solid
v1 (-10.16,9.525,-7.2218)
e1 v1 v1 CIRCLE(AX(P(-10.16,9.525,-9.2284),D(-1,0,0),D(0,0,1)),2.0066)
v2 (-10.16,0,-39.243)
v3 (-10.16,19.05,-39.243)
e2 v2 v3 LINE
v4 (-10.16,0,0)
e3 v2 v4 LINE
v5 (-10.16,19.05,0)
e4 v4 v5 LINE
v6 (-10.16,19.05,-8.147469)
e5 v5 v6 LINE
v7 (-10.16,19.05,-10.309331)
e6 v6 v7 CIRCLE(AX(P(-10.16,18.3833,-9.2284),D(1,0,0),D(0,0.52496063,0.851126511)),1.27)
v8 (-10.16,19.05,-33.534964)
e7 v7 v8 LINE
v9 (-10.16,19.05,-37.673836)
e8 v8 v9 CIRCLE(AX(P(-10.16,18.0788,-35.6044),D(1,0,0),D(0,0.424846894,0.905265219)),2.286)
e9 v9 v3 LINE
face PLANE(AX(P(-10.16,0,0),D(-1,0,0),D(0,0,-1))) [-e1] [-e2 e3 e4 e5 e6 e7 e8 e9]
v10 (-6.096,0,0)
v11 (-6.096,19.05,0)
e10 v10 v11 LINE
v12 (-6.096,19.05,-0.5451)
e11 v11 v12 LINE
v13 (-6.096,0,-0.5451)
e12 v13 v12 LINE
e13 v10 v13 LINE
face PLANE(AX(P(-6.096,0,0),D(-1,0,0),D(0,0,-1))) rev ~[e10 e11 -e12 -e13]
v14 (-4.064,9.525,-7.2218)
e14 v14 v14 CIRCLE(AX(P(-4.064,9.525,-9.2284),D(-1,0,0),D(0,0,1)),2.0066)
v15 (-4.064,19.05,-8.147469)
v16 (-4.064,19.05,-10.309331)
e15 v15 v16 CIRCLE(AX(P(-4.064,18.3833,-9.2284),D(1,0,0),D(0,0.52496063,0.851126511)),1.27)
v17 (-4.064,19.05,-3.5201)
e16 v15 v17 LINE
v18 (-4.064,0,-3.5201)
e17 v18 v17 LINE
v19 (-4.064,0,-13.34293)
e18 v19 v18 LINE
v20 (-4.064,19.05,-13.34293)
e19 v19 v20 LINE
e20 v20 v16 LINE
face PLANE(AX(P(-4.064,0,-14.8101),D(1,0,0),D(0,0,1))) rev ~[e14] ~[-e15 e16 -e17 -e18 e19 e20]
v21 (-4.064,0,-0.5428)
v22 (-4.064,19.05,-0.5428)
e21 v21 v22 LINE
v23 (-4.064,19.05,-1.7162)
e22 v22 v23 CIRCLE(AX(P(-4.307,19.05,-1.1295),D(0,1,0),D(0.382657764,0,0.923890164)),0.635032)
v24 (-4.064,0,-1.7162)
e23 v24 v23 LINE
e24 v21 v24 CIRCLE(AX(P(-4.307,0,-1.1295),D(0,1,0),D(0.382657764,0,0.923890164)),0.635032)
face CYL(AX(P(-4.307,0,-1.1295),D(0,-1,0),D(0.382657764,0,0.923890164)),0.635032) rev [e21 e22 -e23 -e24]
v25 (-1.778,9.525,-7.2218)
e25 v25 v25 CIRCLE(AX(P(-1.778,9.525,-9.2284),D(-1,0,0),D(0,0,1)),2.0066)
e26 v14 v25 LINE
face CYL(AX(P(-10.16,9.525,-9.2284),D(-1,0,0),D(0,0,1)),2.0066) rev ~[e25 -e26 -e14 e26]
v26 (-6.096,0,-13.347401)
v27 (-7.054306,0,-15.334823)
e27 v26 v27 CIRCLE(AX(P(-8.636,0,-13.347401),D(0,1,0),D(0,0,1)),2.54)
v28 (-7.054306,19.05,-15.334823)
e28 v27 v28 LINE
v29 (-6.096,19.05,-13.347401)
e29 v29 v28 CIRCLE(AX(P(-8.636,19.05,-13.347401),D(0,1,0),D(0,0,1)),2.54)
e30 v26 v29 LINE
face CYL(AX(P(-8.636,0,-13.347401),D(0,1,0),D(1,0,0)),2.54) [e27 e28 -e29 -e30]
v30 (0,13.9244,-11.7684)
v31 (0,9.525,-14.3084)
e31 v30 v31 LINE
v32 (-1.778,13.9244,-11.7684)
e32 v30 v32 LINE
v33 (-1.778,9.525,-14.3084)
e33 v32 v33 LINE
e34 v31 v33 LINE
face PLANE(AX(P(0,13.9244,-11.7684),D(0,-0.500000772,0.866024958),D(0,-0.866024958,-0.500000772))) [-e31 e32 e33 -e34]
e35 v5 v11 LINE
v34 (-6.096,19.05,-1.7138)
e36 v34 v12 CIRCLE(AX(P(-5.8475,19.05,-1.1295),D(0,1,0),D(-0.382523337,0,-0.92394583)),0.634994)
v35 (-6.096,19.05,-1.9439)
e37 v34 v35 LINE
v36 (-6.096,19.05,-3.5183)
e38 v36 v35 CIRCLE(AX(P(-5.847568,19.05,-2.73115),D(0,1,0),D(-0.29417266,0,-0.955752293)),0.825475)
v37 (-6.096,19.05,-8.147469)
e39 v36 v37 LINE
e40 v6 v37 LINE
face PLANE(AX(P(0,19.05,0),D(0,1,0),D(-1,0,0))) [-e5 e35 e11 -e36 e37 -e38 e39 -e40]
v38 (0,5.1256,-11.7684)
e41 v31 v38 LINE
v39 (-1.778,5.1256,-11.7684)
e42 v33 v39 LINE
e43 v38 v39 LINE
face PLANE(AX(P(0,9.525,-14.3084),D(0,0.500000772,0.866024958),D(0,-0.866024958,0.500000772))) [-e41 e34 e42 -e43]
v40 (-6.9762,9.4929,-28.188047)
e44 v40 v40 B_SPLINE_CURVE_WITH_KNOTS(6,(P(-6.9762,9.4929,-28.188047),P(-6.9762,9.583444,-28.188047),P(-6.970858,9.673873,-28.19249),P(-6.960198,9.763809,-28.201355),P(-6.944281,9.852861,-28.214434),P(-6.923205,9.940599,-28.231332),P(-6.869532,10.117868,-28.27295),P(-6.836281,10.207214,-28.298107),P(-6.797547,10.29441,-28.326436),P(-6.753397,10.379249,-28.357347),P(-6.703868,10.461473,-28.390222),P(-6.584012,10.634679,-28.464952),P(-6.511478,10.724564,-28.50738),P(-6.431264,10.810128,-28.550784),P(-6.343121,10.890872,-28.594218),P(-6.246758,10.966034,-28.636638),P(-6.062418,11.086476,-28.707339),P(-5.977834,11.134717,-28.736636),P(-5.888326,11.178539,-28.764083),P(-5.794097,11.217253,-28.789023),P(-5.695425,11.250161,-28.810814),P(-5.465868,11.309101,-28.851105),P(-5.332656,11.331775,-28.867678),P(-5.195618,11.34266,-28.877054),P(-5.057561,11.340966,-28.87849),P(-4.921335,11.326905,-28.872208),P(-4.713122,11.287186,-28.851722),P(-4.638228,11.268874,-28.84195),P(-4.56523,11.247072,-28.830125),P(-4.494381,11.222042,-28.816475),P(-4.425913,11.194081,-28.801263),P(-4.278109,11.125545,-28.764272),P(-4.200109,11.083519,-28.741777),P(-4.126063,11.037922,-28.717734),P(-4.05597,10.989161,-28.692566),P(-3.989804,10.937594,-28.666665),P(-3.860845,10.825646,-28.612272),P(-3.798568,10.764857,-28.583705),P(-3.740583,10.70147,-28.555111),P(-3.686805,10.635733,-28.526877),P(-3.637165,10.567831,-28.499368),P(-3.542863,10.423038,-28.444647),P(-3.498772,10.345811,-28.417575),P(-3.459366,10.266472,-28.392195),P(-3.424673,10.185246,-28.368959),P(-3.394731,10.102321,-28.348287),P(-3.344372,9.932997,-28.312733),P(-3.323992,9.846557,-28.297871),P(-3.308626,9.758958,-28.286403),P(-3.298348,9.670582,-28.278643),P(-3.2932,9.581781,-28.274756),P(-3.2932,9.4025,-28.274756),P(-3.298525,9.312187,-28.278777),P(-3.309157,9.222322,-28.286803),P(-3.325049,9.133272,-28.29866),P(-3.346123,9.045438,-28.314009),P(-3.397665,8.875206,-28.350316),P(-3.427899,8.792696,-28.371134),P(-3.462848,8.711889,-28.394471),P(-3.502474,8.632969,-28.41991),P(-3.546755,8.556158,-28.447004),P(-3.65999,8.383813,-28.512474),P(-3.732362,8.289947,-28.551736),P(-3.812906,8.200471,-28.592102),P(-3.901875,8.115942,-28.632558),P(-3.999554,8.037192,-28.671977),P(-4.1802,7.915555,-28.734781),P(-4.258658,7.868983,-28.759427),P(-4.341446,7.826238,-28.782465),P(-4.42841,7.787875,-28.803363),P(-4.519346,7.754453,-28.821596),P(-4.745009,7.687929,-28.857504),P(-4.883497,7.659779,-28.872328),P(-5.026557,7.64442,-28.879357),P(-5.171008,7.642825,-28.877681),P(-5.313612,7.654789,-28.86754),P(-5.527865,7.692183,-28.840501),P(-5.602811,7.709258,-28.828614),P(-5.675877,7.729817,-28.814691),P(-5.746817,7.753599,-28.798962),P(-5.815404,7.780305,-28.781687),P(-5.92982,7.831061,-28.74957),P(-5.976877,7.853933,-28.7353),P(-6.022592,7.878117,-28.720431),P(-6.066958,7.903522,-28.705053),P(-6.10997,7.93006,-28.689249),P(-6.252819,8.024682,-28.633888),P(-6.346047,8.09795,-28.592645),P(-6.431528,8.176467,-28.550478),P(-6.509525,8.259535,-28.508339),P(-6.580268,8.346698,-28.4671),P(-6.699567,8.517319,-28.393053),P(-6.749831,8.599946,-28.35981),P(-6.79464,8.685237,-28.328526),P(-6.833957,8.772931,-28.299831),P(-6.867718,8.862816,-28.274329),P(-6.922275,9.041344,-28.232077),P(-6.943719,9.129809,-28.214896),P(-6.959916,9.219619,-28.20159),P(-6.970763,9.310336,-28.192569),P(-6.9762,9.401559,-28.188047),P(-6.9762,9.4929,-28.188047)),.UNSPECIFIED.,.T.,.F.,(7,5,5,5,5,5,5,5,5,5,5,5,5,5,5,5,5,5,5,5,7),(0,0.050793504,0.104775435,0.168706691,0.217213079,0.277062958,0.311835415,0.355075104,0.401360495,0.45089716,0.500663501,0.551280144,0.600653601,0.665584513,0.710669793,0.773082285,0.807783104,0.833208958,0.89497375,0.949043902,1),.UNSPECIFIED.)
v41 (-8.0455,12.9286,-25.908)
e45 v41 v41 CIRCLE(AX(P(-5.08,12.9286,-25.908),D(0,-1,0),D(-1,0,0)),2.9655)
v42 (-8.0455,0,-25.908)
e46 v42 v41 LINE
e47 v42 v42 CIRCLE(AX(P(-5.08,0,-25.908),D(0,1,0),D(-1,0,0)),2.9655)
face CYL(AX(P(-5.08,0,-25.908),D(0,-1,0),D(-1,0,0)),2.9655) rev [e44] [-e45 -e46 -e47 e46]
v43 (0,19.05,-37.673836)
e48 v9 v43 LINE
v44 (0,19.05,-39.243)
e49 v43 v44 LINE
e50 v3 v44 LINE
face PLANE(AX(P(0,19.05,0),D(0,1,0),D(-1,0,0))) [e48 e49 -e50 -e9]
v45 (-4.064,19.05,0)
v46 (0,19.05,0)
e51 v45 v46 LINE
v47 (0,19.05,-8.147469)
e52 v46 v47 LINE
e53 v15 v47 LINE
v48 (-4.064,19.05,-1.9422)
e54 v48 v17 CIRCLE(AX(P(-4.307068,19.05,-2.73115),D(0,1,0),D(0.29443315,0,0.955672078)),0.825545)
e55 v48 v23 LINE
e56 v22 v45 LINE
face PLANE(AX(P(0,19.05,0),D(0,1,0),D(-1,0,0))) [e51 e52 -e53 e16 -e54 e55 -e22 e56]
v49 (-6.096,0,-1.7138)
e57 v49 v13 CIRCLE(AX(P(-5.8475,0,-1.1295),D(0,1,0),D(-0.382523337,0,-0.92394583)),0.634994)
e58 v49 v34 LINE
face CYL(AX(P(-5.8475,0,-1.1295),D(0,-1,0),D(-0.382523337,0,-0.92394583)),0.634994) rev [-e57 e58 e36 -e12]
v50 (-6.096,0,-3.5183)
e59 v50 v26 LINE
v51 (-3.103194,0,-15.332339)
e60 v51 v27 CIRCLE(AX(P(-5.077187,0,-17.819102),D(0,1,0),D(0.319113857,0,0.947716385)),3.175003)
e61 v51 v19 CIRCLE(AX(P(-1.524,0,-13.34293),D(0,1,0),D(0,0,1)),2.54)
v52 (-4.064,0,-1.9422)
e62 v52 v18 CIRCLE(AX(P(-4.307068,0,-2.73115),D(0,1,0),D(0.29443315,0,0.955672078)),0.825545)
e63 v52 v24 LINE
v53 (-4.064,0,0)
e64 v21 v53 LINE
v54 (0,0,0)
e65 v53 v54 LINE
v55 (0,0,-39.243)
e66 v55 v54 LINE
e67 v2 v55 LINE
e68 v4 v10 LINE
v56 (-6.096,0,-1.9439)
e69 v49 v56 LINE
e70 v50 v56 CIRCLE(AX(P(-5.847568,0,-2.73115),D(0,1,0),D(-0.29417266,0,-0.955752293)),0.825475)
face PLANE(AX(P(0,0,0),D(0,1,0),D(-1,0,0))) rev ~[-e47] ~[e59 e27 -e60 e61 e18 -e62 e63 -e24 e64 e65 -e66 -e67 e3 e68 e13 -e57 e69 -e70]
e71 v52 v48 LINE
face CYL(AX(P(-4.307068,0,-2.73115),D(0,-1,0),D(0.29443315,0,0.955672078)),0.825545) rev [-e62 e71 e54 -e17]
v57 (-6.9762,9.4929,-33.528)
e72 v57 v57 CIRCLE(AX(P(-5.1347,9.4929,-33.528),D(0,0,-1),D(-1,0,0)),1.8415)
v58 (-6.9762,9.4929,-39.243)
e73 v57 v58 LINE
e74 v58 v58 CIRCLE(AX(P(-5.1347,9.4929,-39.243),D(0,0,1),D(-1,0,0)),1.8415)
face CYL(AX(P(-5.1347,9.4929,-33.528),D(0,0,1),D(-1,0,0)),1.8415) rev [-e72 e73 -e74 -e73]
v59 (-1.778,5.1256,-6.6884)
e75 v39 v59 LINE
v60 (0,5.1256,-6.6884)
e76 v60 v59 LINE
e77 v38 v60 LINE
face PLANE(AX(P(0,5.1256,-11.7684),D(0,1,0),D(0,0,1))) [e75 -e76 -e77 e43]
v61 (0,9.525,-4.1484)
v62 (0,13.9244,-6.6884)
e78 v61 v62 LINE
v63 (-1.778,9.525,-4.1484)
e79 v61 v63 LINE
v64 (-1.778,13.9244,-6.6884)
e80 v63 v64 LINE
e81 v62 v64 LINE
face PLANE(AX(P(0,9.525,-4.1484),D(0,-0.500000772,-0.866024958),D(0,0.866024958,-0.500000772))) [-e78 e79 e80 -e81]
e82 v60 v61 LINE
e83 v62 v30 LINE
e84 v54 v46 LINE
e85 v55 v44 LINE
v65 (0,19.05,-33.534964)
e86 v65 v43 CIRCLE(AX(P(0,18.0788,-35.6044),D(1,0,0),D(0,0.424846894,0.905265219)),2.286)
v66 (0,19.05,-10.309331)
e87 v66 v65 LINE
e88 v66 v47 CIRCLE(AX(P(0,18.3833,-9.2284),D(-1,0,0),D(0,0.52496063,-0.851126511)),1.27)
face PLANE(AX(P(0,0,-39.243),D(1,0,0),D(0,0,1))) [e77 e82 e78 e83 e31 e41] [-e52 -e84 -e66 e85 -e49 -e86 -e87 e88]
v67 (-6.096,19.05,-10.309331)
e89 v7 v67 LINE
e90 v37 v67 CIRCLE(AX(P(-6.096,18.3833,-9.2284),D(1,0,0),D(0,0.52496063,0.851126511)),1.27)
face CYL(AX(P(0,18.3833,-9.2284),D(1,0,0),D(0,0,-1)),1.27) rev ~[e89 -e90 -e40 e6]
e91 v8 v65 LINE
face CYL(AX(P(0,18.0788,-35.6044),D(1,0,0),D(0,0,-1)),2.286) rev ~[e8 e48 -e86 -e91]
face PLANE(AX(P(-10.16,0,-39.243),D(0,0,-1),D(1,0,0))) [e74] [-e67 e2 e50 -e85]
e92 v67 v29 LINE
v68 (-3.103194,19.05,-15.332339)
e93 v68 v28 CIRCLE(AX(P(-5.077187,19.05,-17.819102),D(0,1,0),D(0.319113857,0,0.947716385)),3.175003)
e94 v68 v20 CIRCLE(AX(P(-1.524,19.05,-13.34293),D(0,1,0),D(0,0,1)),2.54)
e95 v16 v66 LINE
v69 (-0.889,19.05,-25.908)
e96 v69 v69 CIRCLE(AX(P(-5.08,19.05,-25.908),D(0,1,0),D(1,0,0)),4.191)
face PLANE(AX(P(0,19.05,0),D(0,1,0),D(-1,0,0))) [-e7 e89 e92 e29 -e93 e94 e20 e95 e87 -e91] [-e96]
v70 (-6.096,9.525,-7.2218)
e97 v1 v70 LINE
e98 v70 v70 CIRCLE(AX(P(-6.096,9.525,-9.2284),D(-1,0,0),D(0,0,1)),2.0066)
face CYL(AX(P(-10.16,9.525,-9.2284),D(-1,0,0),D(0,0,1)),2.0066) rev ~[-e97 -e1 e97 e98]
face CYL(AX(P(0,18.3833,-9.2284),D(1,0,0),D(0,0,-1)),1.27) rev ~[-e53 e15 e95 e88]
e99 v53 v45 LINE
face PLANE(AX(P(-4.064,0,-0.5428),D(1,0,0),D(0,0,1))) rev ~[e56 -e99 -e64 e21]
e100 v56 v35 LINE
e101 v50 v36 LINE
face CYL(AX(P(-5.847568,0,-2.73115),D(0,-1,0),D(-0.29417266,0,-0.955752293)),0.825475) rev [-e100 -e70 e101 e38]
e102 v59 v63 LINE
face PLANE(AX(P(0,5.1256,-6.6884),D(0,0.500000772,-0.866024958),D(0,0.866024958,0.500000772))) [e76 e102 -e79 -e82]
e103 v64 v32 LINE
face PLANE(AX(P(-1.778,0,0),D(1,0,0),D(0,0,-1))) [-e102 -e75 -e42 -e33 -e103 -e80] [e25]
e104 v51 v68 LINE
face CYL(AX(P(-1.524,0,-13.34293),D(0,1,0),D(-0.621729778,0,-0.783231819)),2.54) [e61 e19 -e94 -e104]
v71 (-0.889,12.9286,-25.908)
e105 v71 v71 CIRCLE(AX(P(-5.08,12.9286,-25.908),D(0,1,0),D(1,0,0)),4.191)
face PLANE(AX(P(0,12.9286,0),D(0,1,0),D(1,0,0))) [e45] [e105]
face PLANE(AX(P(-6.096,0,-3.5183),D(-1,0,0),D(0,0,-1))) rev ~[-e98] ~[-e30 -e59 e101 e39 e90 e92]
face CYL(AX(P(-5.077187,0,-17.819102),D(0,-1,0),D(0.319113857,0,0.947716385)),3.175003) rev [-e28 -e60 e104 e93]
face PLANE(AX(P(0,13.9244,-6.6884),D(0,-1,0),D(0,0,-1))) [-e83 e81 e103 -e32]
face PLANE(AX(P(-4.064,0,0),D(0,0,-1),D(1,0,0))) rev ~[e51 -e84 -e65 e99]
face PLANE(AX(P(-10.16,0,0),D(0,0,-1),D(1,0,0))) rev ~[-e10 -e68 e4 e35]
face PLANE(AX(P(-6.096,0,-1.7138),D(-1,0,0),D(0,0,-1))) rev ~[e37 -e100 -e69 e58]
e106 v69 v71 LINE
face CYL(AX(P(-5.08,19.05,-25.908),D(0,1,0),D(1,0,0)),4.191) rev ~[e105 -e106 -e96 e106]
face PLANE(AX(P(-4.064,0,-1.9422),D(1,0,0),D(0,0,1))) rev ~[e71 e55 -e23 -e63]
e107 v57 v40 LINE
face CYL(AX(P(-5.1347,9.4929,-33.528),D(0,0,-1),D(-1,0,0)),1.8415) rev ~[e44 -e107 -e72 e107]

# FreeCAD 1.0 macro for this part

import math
import FreeCAD as App
import Part
import Sketcher

V = App.Vector
Q = App.Units.Quantity


def edges_at(feature, points):
    """Names of the edges that pass closest to the given points."""
    edges = feature.Shape.Edges
    near = lambda p: min(range(len(edges)), key=lambda i: edges[i].distToShape(Part.Vertex(*p))[0])
    return sorted({f"Edge{near(p) + 1}" for p in points})


def add_polygon(sketch, points):
    """Adds a closed chain of lines whose ends are joined by coincident constraints."""
    first, n = sketch.GeometryCount, len(points)
    for a, b in zip(points, points[1:] + points[:1]):
        sketch.addGeometry(Part.LineSegment(App.Vector(*a, 0), App.Vector(*b, 0)), False)
    for i in range(n):
        sketch.addConstraint(Sketcher.Constraint("Coincident", first + i, 2, first + (i + 1) % n, 1))

doc = App.newDocument("Part")
body = doc.addObject("PartDesign::Body", "Body")

sketch1 = body.newObject("Sketcher::SketchObject", "Sketch")
sketch1.AttachmentSupport = (doc.getObject("XZ_Plane"), [""])
sketch1.MapMode = "FlatFace"
sketch1.addGeometry([
    Part.LineSegment(V(-10.16, -39.243, 0), V(-10.16, 0, 0)),
    Part.LineSegment(V(-10.16, 0, 0), V(-6.096, 0, 0)),
    Part.LineSegment(V(-6.096, 0, 0), V(-6.096, -0.5451, 0)),
    Part.ArcOfCircle(Part.Circle(V(-5.8475, -1.1295, 0), V(0, 0, 1), 0.634994), math.radians(113.036287), math.radians(246.960182)),
    Part.LineSegment(V(-6.096, -1.7138, 0), V(-6.096, -1.9439, 0)),
    Part.ArcOfCircle(Part.Circle(V(-5.8475, -2.7311, 0), V(0, 0, 1), 0.825543), math.radians(107.519647), math.radians(252.480354)),
    Part.LineSegment(V(-6.096, -3.5183, 0), V(-6.096, -14.812, 0)),
    Part.ArcOfCircle(Part.Circle(V(-5.0772, -17.8191, 0), V(0, 0, 1), 3.175005), math.radians(108.716287), math.radians(431.390429)),
    Part.LineSegment(V(-4.064, -14.8101, 0), V(-4.064, -3.5201, 0)),
    Part.ArcOfCircle(Part.Circle(V(-4.307, -2.7311, 0), V(0, 0, 1), 0.825477), math.radians(-72.881964), math.radians(72.879921)),
    Part.LineSegment(V(-4.064, -1.9422, 0), V(-4.064, -1.7162, 0)),
    Part.ArcOfCircle(Part.Circle(V(-4.307, -1.1295, 0), V(0, 0, 1), 0.635032), math.radians(-67.501592), math.radians(67.501592)),
    Part.LineSegment(V(-4.064, -0.5428, 0), V(-4.064, 0, 0)),
    Part.LineSegment(V(-4.064, 0, 0), V(0, 0, 0)),
    Part.LineSegment(V(0, 0, 0), V(0, -39.243, 0)),
    Part.LineSegment(V(0, -39.243, 0), V(-10.16, -39.243, 0)),
    Part.Circle(V(-5.08, -25.908, 0), V(0, 0, 1), 2.9655),
], False)
sketch1.addConstraint([
    Sketcher.Constraint("Coincident", 0, 2, 1, 1),
    Sketcher.Constraint("Coincident", 1, 2, 2, 1),
    Sketcher.Constraint("Coincident", 2, 2, 3, 1),
    Sketcher.Constraint("Coincident", 3, 2, 4, 1),
    Sketcher.Constraint("Coincident", 4, 2, 5, 1),
    Sketcher.Constraint("Coincident", 5, 2, 6, 1),
    Sketcher.Constraint("Coincident", 6, 2, 7, 1),
    Sketcher.Constraint("Coincident", 7, 2, 8, 1),
    Sketcher.Constraint("Coincident", 8, 2, 9, 1),
    Sketcher.Constraint("Coincident", 9, 2, 10, 1),
    Sketcher.Constraint("Coincident", 10, 2, 11, 1),
    Sketcher.Constraint("Coincident", 11, 2, 12, 1),
    Sketcher.Constraint("Coincident", 12, 2, 13, 1),
    Sketcher.Constraint("Coincident", 13, 2, 14, 1),
    Sketcher.Constraint("Coincident", 14, 2, 15, 1),
    Sketcher.Constraint("Coincident", 15, 2, 0, 1),
    Sketcher.Constraint("Vertical", 0),
    Sketcher.Constraint("Horizontal", 1),
    Sketcher.Constraint("Vertical", 2),
    Sketcher.Constraint("Vertical", 4),
    Sketcher.Constraint("Vertical", 6),
    Sketcher.Constraint("Vertical", 8),
    Sketcher.Constraint("Vertical", 10),
    Sketcher.Constraint("Vertical", 12),
    Sketcher.Constraint("Horizontal", 13),
    Sketcher.Constraint("Vertical", 14),
    Sketcher.Constraint("Horizontal", 15),
    Sketcher.Constraint("Coincident", 13, 2, -1, 1),
    Sketcher.Constraint("Equal", 5, 9),
    Sketcher.Constraint("Equal", 3, 11),
    Sketcher.Constraint("PointOnObject", 0, 2, -1),
    Sketcher.Constraint("Horizontal", 5, 3, 9, 3),
    Sketcher.Constraint("Horizontal", 3, 3, 11, 3),
    Sketcher.Constraint("Vertical", 3, 3, 5, 3),
    Sketcher.Constraint("Vertical", 9, 3, 11, 3),
    Sketcher.Constraint("Vertical", 2, 2, 3, 2),
    Sketcher.Constraint("Vertical", 4, 2, 5, 2),
    Sketcher.Constraint("Vertical", 8, 2, 9, 2),
    Sketcher.Constraint("Vertical", 10, 2, 11, 2),
    Sketcher.Constraint("Equal", 1, 13),
    Sketcher.Constraint("DistanceX", 15, 2, 15, 1, Q("0.4 in")),
    Sketcher.Constraint("Radius", 7, Q("0.125 in")),
    Sketcher.Constraint("Diameter", 16, Q("0.2335 in")),
    Sketcher.Constraint("DistanceY", 16, 3, -1, 1, Q("1.02 in")),
    Sketcher.Constraint("Radius", 3, Q("0.025 in")),
    Sketcher.Constraint("DistanceX", 1, 1, 1, 2, Q("0.16 in")),
    Sketcher.Constraint("DistanceX", 16, 3, -1, 1, Q("0.2 in")),
    Sketcher.Constraint("Radius", 5, Q("0.0325 in")),
    Sketcher.Constraint("DistanceY", 0, 1, 0, 2, Q("1.545 in")),
    Sketcher.Constraint("DistanceY", 8, 1, 8, 2, Q("0.4445 in")),
    Sketcher.Constraint("DistanceY", 10, 1, 10, 2, Q("0.0089 in")),
    Sketcher.Constraint("DistanceY", 3, 3, 2, 2, Q("0.023 in")),
    Sketcher.Constraint("DistanceY", 9, 2, 11, 3, Q("0.032 in")),
    Sketcher.Constraint("DistanceY", 2, 2, 2, 1, Q("0.545 mm")),
    Sketcher.Constraint("DistanceY", 6, 2, 6, 1, Q("11.2937 mm")),
])
pad1 = body.newObject("PartDesign::Pad", "Pad")
pad1.Profile = sketch1
pad1.Length = Q("0.75 in")
pad1.Reversed = True

sketch2 = body.newObject("Sketcher::SketchObject", "Sketch001")
sketch2.AttachmentSupport = (doc.getObject("YZ_Plane"), [""])
sketch2.MapMode = "FlatFace"
sketch2.addGeometry(Part.Circle(V(9.525, -9.2284, 0), V(0, 0, 1), 1.8542), False)
sketch2.addConstraint([
    Sketcher.Constraint("Diameter", 0, Q("0.146 in")),
    Sketcher.Constraint("DistanceX", -1, 1, 0, 3, Q("0.375 in")),
    Sketcher.Constraint("DistanceY", 0, 3, -1, 1, Q("9.2284 mm")),
])
pocket1 = body.newObject("PartDesign::Pocket", "Pocket")
pocket1.Profile = sketch2
pocket1.Length = Q("0.75 in")

sketch3 = body.newObject("Sketcher::SketchObject", "Sketch002")
sketch3.AttachmentSupport = (doc.getObject("YZ_Plane"), [""])
sketch3.MapMode = "FlatFace"
add_polygon(sketch3, [(5.1256, -11.7684), (9.525, -14.3084), (13.9244, -11.7684), (13.9244, -6.6884), (9.525, -4.1484), (5.1256, -6.6884)])
sketch3.addGeometry(Part.Circle(V(9.525, -9.2284, 0), V(0, 0, 1), 1.8542), False)
sketch3.addConstraint([
    Sketcher.Constraint("Vertical", 2),
    Sketcher.Constraint("Vertical", 5),
    Sketcher.Constraint("Parallel", 0, 3),
    Sketcher.Constraint("Parallel", 1, 4),
    Sketcher.Constraint("Horizontal", 2, 2, 4, 2),
    Sketcher.Constraint("Horizontal", 1, 2, 5, 2),
    Sketcher.Constraint("Vertical", 6, 3, 0, 2),
    Sketcher.Constraint("Vertical", 0, 2, 3, 2),
    Sketcher.Constraint("DistanceY", 0, 2, 3, 2, Q("0.4 in")),
    Sketcher.Constraint("Diameter", 6, Q("0.146 in")),
    Sketcher.Constraint("DistanceY", 2, 1, 2, 2, Q("0.2 in")),
    Sketcher.Constraint("Angle", 0, Q("-30 deg")),
    Sketcher.Constraint("DistanceY", 0, 2, 6, 3, Q("0.2 in")),
    Sketcher.Constraint("DistanceX", -1, 1, 6, 3, Q("0.375 in")),
    Sketcher.Constraint("DistanceY", 6, 3, -1, 1, Q("9.2284 mm")),
])
pocket2 = body.newObject("PartDesign::Pocket", "Pocket001")
pocket2.Profile = sketch3
pocket2.Length = Q("0.07 in")

sketch4 = body.newObject("Sketcher::SketchObject", "Sketch003")
sketch4.AttachmentSupport = (doc.getObject("XY_Plane"), [""])
sketch4.MapMode = "FlatFace"
sketch4.AttachmentOffset = App.Placement(V(0, 0, -1.32 * 25.4), App.Rotation())
sketch4.addGeometry(Part.Circle(V(-5.1347, 9.4929, 0), V(0, 0, 1), 1.8415), False)
sketch4.addConstraint([
    Sketcher.Constraint("Diameter", 0, Q("0.145 in")),
    Sketcher.Constraint("DistanceX", 0, 3, -1, 1, Q("5.1347 mm")),
    Sketcher.Constraint("DistanceY", -1, 1, 0, 3, Q("9.493 mm")),
])
pocket3 = body.newObject("PartDesign::Pocket", "Pocket002")
pocket3.Profile = sketch4
pocket3.Length = Q("0.5 in")
pocket3.Midplane = True

sketch5 = body.newObject("Sketcher::SketchObject", "Sketch004")
sketch5.AttachmentSupport = (doc.getObject("YZ_Plane"), [""])
sketch5.MapMode = "FlatFace"
sketch5.addGeometry([
    Part.Circle(V(18.3833, -9.2284, 0), V(0, 0, 1), 1.27),
    Part.Circle(V(18.0788, -35.6044, 0), V(0, 0, 1), 2.286),
], False)
sketch5.addConstraint([
    Sketcher.Constraint("Diameter", 0, Q("0.1 in")),
    Sketcher.Constraint("Diameter", 1, Q("0.18 in")),
    Sketcher.Constraint("DistanceX", 1, 3, 0, 3, Q("0.012 in")),
    Sketcher.Constraint("DistanceX", -1, 1, 0, 3, Q("18.3833 mm")),
    Sketcher.Constraint("DistanceY", 0, 3, -1, 1, Q("9.2284 mm")),
    Sketcher.Constraint("DistanceY", 1, 3, -1, 1, Q("35.6044 mm")),
])
pocket4 = body.newObject("PartDesign::Pocket", "Pocket003")
pocket4.Profile = sketch5
pocket4.Length = Q("2.2 in")

sketch6 = body.newObject("Sketcher::SketchObject", "Sketch005")
sketch6.AttachmentSupport = (doc.getObject("XZ_Plane"), [""])
sketch6.MapMode = "FlatFace"
sketch6.AttachmentOffset = App.Placement(V(0, 0, -0.75 * 25.4), App.Rotation())
sketch6.addGeometry(Part.Circle(V(-5.08, -25.908, 0), V(0, 0, 1), 4.191), False)
sketch6.addConstraint([
    Sketcher.Constraint("Diameter", 0, Q("0.33 in")),
    Sketcher.Constraint("DistanceX", 0, 3, -1, 1, Q("0.2 in")),
    Sketcher.Constraint("DistanceY", 0, 3, -1, 1, Q("1.02 in")),
])
pocket5 = body.newObject("PartDesign::Pocket", "Pocket004")
pocket5.Profile = sketch6
pocket5.Length = Q("0.241 in")
pocket5.Reversed = True
doc.recompute()

fillet = body.newObject("PartDesign::Fillet", "Fillet")
fillet.Base = (pocket5, edges_at(pocket5, [(-6.096, 9.525, -14.812), (-4.064, 9.525, -14.81)]))
fillet.Radius = Q("0.1 in")

sketch7 = body.newObject("Sketcher::SketchObject", "Sketch006")
sketch7.AttachmentSupport = (doc.getObject("YZ_Plane"), [""])
sketch7.MapMode = "FlatFace"
sketch7.AttachmentOffset = App.Placement(V(0, 0, -0.4 * 25.4), App.Rotation())
sketch7.addGeometry(Part.Circle(V(9.525, -9.2284, 0), V(0, 0, 1), 2.0066), False)
sketch7.addConstraint([
    Sketcher.Constraint("Diameter", 0, Q("0.158 in")),
    Sketcher.Constraint("DistanceX", -1, 1, 0, 3, Q("0.375 in")),
    Sketcher.Constraint("DistanceY", 0, 3, -1, 1, Q("9.2284 mm")),
])
pocket6 = body.newObject("PartDesign::Pocket", "Pocket005")
pocket6.Profile = sketch7
pocket6.Length = Q("0.5 in")
pocket6.Reversed = True

doc.recompute()
